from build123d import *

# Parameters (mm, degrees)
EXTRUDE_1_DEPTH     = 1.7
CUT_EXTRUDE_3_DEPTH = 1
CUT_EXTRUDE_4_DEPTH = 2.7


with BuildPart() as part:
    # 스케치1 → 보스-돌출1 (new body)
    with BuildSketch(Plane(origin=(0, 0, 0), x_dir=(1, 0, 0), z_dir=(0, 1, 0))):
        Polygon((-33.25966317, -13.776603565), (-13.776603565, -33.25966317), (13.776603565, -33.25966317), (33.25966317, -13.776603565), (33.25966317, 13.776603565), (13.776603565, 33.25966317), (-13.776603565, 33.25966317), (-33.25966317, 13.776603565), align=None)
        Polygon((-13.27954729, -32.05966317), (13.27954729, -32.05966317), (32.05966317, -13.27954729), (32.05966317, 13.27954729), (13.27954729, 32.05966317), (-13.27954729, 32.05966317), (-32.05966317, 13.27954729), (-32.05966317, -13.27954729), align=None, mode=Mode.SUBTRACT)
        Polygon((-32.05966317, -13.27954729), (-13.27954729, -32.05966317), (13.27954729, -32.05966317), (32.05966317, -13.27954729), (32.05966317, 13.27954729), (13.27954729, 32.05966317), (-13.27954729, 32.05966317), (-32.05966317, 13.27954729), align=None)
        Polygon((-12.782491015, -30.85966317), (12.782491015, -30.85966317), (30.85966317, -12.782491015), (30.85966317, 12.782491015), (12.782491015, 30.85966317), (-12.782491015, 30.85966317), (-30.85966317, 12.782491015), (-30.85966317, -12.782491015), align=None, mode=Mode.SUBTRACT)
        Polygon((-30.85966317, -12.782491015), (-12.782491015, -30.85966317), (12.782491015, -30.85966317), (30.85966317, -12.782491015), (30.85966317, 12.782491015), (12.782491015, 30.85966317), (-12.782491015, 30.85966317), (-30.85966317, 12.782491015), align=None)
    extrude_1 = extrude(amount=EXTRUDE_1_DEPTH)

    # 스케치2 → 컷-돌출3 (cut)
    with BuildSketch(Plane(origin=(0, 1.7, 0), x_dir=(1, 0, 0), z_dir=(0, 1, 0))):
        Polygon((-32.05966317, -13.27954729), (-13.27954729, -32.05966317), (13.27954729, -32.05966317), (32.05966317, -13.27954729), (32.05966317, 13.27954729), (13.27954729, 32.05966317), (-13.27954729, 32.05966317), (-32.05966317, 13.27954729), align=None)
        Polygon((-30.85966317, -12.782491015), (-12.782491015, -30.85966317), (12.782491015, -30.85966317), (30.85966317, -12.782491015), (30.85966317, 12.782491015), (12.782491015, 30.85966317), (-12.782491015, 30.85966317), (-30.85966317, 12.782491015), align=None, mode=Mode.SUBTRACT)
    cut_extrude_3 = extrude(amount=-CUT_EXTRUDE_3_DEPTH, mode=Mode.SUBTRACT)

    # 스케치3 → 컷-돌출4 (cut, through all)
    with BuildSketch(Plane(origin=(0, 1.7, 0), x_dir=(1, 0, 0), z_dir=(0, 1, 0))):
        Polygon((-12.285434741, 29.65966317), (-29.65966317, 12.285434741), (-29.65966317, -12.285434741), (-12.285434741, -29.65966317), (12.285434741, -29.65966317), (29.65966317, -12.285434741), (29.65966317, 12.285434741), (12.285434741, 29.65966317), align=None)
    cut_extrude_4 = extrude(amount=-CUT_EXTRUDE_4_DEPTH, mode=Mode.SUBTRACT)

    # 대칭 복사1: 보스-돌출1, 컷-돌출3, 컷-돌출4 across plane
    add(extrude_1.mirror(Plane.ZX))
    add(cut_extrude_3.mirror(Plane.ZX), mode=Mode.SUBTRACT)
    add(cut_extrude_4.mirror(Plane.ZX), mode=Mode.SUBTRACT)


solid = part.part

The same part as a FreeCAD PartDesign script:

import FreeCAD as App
import Part
import Sketcher

V = App.Vector
Q = App.Units.Quantity


def add_polygon(sketch, points):
    """Adds a closed chain of lines whose ends are joined by coincident constraints."""
    first, n = sketch.GeometryCount, len(points)
    for a, b in zip(points, points[1:] + points[:1]):
        sketch.addGeometry(Part.LineSegment(App.Vector(*a, 0), App.Vector(*b, 0)), False)
    for i in range(n):
        sketch.addConstraint(Sketcher.Constraint("Coincident", first + i, 2, first + (i + 1) % n, 1))

doc = App.newDocument("Part")
body = doc.addObject("PartDesign::Body", "Body")

# Sketch on XZ plane
sketch1 = body.newObject("Sketcher::SketchObject", "Sketch")
sketch1.AttachmentSupport = (doc.getObject("XZ_Plane"), [""])
sketch1.MapMode = "FlatFace"
add_polygon(sketch1, [(-33, 14), (-14, 33), (14, 33), (33, 14), (33, -14), (14, -33), (-14, -33), (-33, -14)])  # lines 0-7
sketch1.addConstraint(Sketcher.Constraint("Horizontal", 1))
sketch1.addConstraint(Sketcher.Constraint("Vertical", 3))
sketch1.addConstraint(Sketcher.Constraint("Horizontal", 5))
sketch1.addConstraint(Sketcher.Constraint("Vertical", 7))
sketch1.addConstraint(Sketcher.Constraint("Symmetric", 0, 2, 4, 2, -1, 1))
sketch1.addConstraint(Sketcher.Constraint("Symmetric", 2, 2, 6, 2, -1, 1))
sketch1.addConstraint(Sketcher.Constraint("Perpendicular", 0, 2))
sketch1.addConstraint(Sketcher.Constraint("Perpendicular", 2, 4))
sketch1.addConstraint(Sketcher.Constraint("Perpendicular", 4, 6))
sketch1.addConstraint(Sketcher.Constraint("Horizontal", 3, 2, 6, 2))
sketch1.addConstraint(Sketcher.Constraint("Vertical", 1, 2, 4, 2))
sketch1.addConstraint(Sketcher.Constraint("Equal", 5, 3))
sketch1.addConstraint(Sketcher.Constraint("DistanceX", 1, 1, 1, 2, Q("27.553207 mm")))
sketch1.addConstraint(Sketcher.Constraint("DistanceX", 1, 2, 2, 2, Q("19.48306 mm")))
pad1 = body.newObject("PartDesign::Pad", "Pad")
pad1.Profile = sketch1
pad1.Length = 1.7
pad1.Reversed = True

# Sketch on XZ plane
sketch2 = body.newObject("Sketcher::SketchObject", "Sketch001")
sketch2.AttachmentSupport = (doc.getObject("XZ_Plane"), [""])
sketch2.MapMode = "FlatFace"
sketch2.AttachmentOffset = App.Placement(V(0, 0, -1.7), App.Rotation())
add_polygon(sketch2, [(-32, 13), (-13, 32), (13, 32), (32, 13), (32, -13), (13, -32), (-13, -32), (-32, -13)])  # lines 0-7
add_polygon(sketch2, [(-13, 31), (-31, 13), (-31, -13), (-13, -31), (13, -31), (31, -13), (31, 13), (13, 31)])  # lines 8-15
sketch2.addConstraint(Sketcher.Constraint("Horizontal", 1))
sketch2.addConstraint(Sketcher.Constraint("Vertical", 3))
sketch2.addConstraint(Sketcher.Constraint("Horizontal", 5))
sketch2.addConstraint(Sketcher.Constraint("Vertical", 7))
sketch2.addConstraint(Sketcher.Constraint("Vertical", 9))
sketch2.addConstraint(Sketcher.Constraint("Horizontal", 11))
sketch2.addConstraint(Sketcher.Constraint("Vertical", 13))
sketch2.addConstraint(Sketcher.Constraint("Horizontal", 15))
sketch2.addConstraint(Sketcher.Constraint("Symmetric", 0, 2, 4, 2, -1, 1))
sketch2.addConstraint(Sketcher.Constraint("Symmetric", 2, 2, 6, 2, -1, 1))
sketch2.addConstraint(Sketcher.Constraint("Symmetric", 8, 2, 12, 2, -1, 1))
sketch2.addConstraint(Sketcher.Constraint("Symmetric", 10, 2, 14, 2, -1, 1))
sketch2.addConstraint(Sketcher.Constraint("Perpendicular", 0, 2))
sketch2.addConstraint(Sketcher.Constraint("Perpendicular", 2, 4))
sketch2.addConstraint(Sketcher.Constraint("Perpendicular", 4, 6))
sketch2.addConstraint(Sketcher.Constraint("Perpendicular", 6, 8))
sketch2.addConstraint(Sketcher.Constraint("Perpendicular", 8, 10))
sketch2.addConstraint(Sketcher.Constraint("Perpendicular", 10, 12))
sketch2.addConstraint(Sketcher.Constraint("Perpendicular", 12, 14))
sketch2.addConstraint(Sketcher.Constraint("Horizontal", 3, 2, 6, 2))
sketch2.addConstraint(Sketcher.Constraint("Horizontal", 9, 2, 12, 2))
sketch2.addConstraint(Sketcher.Constraint("Vertical", 1, 2, 4, 2))
sketch2.addConstraint(Sketcher.Constraint("Equal", 5, 3))
sketch2.addConstraint(Sketcher.Constraint("Equal", 15, 9))
sketch2.addConstraint(Sketcher.Constraint("DistanceX", 7, 2, 8, 2, Q("1.2 mm")))
sketch2.addConstraint(Sketcher.Constraint("DistanceX", 1, 1, 1, 2, Q("26.559095 mm")))
sketch2.addConstraint(Sketcher.Constraint("DistanceX", 11, 1, 11, 2, Q("25.564982 mm")))
sketch2.addConstraint(Sketcher.Constraint("DistanceX", 0, 2, 2, 2, Q("45.33921 mm")))
pocket1 = body.newObject("PartDesign::Pocket", "Pocket")
pocket1.Profile = sketch2
pocket1.Length = 1
pocket1.Reversed = True

# Sketch on XZ plane
sketch3 = body.newObject("Sketcher::SketchObject", "Sketch002")
sketch3.AttachmentSupport = (doc.getObject("XZ_Plane"), [""])
sketch3.MapMode = "FlatFace"
sketch3.AttachmentOffset = App.Placement(V(0, 0, -1.7), App.Rotation())
add_polygon(sketch3, [(-12, -30), (-30, -12), (-30, 12), (-12, 30), (12, 30), (30, 12), (30, -12), (12, -30)])  # lines 0-7
sketch3.addConstraint(Sketcher.Constraint("Vertical", 1))
sketch3.addConstraint(Sketcher.Constraint("Horizontal", 3))
sketch3.addConstraint(Sketcher.Constraint("Vertical", 5))
sketch3.addConstraint(Sketcher.Constraint("Horizontal", 7))
sketch3.addConstraint(Sketcher.Constraint("Symmetric", 0, 2, 4, 2, -1, 1))
sketch3.addConstraint(Sketcher.Constraint("Symmetric", 2, 2, 6, 2, -1, 1))
sketch3.addConstraint(Sketcher.Constraint("Perpendicular", 0, 2))
sketch3.addConstraint(Sketcher.Constraint("Perpendicular", 2, 4))
sketch3.addConstraint(Sketcher.Constraint("Perpendicular", 4, 6))
sketch3.addConstraint(Sketcher.Constraint("Horizontal", 1, 2, 4, 2))
sketch3.addConstraint(Sketcher.Constraint("Vertical", 3, 2, 6, 2))
sketch3.addConstraint(Sketcher.Constraint("Equal", 7, 1))
sketch3.addConstraint(Sketcher.Constraint("DistanceX", 3, 1, 3, 2, Q("24.570869 mm")))
sketch3.addConstraint(Sketcher.Constraint("Distance", 0, Q("24.570869 mm")))
pocket2 = body.newObject("PartDesign::Pocket", "Pocket001")
pocket2.Profile = sketch3
pocket2.Type = "ThroughAll"
pocket2.Reversed = True
doc.recompute()

mirrored = body.newObject("PartDesign::Mirrored", "Mirrored")
mirrored.Originals = [pad1, pocket1, pocket2]
mirrored.MirrorPlane = (doc.getObject("XZ_Plane"), [""])
body.Tip = mirrored

doc.recompute()
